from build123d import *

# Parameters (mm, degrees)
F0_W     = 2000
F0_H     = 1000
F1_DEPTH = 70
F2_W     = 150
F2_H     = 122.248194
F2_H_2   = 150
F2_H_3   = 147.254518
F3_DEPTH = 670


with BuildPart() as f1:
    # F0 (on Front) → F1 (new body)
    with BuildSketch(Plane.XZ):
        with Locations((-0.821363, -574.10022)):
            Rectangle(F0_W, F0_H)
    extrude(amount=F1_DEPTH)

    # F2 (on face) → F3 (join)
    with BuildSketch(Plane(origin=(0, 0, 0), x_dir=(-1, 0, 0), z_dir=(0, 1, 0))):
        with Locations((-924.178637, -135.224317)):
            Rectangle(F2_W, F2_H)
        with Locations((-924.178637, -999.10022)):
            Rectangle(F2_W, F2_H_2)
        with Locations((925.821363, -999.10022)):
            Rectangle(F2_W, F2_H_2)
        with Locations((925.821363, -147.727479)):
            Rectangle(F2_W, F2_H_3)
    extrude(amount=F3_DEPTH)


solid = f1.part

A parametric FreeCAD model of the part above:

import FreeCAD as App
import Part
import Sketcher
Q = App.Units.Quantity


def add_polygon(sketch, points):
    """Adds a closed chain of lines whose ends are joined by coincident constraints."""
    first, n = sketch.GeometryCount, len(points)
    for a, b in zip(points, points[1:] + points[:1]):
        sketch.addGeometry(Part.LineSegment(App.Vector(*a, 0), App.Vector(*b, 0)), False)
    for i in range(n):
        sketch.addConstraint(Sketcher.Constraint("Coincident", first + i, 2, first + (i + 1) % n, 1))

doc = App.newDocument("Part")
body = doc.addObject("PartDesign::Body", "Body")

sketch1 = body.newObject("Sketcher::SketchObject", "Sketch")
sketch1.AttachmentSupport = (doc.getObject("XZ_Plane"), [""])
sketch1.MapMode = "FlatFace"
add_polygon(sketch1, [(-1001, -74), (-1001, -1074), (999, -1074), (999, -74)])
sketch1.addConstraint([
    Sketcher.Constraint("Vertical", 0),
    Sketcher.Constraint("Horizontal", 1),
    Sketcher.Constraint("Vertical", 2),
    Sketcher.Constraint("Horizontal", 3),
    Sketcher.Constraint("DistanceX", 1, 1, 1, 2, Q("2000 mm")),
    Sketcher.Constraint("DistanceY", 0, 2, 0, 1, Q("1000 mm")),
    Sketcher.Constraint("DistanceY", 0, 2, -1, 1, Q("1074.10022 mm")),
    Sketcher.Constraint("DistanceX", 0, 2, -1, 1, Q("1000.821363 mm")),
])
pad1 = body.newObject("PartDesign::Pad", "Pad")
pad1.Profile = sketch1
pad1.Length = 70

sketch2 = body.newObject("Sketcher::SketchObject", "Sketch001")
sketch2.AttachmentSupport = (doc.getObject("XZ_Plane"), [""])
sketch2.MapMode = "FlatFace"
add_polygon(sketch2, [(999, -74), (999, -196), (849, -196), (849, -74)])
add_polygon(sketch2, [(999, -924), (999, -1074), (849, -1074), (849, -924)])
add_polygon(sketch2, [(-851, -924), (-851, -1074), (-1001, -1074), (-1001, -924)])
add_polygon(sketch2, [(-851, -74), (-851, -221), (-1001, -221), (-1001, -74)])
sketch2.addConstraint([
    Sketcher.Constraint("Vertical", 0),
    Sketcher.Constraint("Horizontal", 1),
    Sketcher.Constraint("Vertical", 2),
    Sketcher.Constraint("Horizontal", 3),
    Sketcher.Constraint("Vertical", 4),
    Sketcher.Constraint("Horizontal", 5),
    Sketcher.Constraint("Vertical", 6),
    Sketcher.Constraint("Horizontal", 7),
    Sketcher.Constraint("Vertical", 8),
    Sketcher.Constraint("Horizontal", 9),
    Sketcher.Constraint("Vertical", 10),
    Sketcher.Constraint("Horizontal", 11),
    Sketcher.Constraint("Vertical", 12),
    Sketcher.Constraint("Horizontal", 13),
    Sketcher.Constraint("Vertical", 14),
    Sketcher.Constraint("Horizontal", 15),
    Sketcher.Constraint("Horizontal", 5, 2, 8, 2),
    Sketcher.Constraint("Horizontal", 7, 2, 10, 2),
    Sketcher.Constraint("Horizontal", 3, 2, 14, 2),
    Sketcher.Constraint("Vertical", 3, 2, 4, 2),
    Sketcher.Constraint("Vertical", 2, 2, 5, 2),
    Sketcher.Constraint("Vertical", 11, 2, 12, 2),
    Sketcher.Constraint("Vertical", 10, 2, 13, 2),
    Sketcher.Constraint("Equal", 7, 9),
    Sketcher.Constraint("Equal", 15, 4),
    Sketcher.Constraint("DistanceX", 1, 2, 1, 1, Q("150 mm")),
    Sketcher.Constraint("DistanceY", 4, 2, 3, 2, Q("1000 mm")),
    Sketcher.Constraint("DistanceX", 8, 2, 5, 2, Q("1700 mm")),
    Sketcher.Constraint("DistanceY", 12, 2, 12, 1, Q("147.254518 mm")),
    Sketcher.Constraint("DistanceY", 0, 2, 0, 1, Q("122.248194 mm")),
    Sketcher.Constraint("DistanceY", 2, 2, -1, 1, Q("74.10022 mm")),
    Sketcher.Constraint("DistanceX", -1, 1, 0, 2, Q("999.178637 mm")),
])
pad2 = body.newObject("PartDesign::Pad", "Pad001")
pad2.Profile = sketch2
pad2.Length = 670
pad2.Reversed = True

doc.recompute()
